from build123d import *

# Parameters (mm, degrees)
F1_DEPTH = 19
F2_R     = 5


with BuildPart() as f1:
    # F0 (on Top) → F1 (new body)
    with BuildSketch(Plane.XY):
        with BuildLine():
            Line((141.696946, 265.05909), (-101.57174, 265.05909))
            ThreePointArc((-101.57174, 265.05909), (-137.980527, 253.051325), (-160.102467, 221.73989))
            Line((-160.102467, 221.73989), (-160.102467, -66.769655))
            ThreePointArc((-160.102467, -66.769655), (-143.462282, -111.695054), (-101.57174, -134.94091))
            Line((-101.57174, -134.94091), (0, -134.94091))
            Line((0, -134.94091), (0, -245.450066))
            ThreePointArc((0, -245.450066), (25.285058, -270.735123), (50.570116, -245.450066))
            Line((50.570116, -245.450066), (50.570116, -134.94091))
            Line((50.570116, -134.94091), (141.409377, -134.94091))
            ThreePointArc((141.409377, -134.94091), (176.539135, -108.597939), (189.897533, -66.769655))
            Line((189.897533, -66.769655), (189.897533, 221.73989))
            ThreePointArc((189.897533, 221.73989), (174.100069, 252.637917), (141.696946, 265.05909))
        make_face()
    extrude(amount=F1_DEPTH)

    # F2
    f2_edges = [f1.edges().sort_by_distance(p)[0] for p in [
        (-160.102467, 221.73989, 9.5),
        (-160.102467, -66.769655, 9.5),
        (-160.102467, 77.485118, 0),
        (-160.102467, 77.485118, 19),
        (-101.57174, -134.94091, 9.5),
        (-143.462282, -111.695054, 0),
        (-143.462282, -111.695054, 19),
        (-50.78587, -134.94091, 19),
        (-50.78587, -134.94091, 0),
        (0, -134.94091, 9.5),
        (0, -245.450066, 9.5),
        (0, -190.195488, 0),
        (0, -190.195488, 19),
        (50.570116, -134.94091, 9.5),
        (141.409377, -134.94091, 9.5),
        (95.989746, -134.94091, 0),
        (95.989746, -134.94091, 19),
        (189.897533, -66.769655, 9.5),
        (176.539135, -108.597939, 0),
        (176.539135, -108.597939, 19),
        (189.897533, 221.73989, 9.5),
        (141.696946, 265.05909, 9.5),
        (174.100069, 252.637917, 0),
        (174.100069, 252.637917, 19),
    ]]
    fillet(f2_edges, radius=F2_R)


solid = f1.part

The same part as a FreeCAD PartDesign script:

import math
import FreeCAD as App
import Part
import Sketcher


def edges_at(feature, points):
    """Names of the edges that pass closest to the given points."""
    edges = feature.Shape.Edges
    near = lambda p: min(range(len(edges)), key=lambda i: edges[i].distToShape(Part.Vertex(*p))[0])
    return sorted({f"Edge{near(p) + 1}" for p in points})

doc = App.newDocument("Part")
body = doc.addObject("PartDesign::Body", "Body")

sketch1 = body.newObject("Sketcher::SketchObject", "Sketch")
sketch1.AttachmentSupport = (doc.getObject("XY_Plane"), [""])
sketch1.MapMode = "FlatFace"
sketch1.addGeometry([
    Part.LineSegment(App.Vector(142, 265, 0), App.Vector(-102, 265, 0)),
    Part.ArcOfCircle(Part.Circle(App.Vector(-102, 204, 0), App.Vector(0, 0, 1), 61), math.radians(90), math.radians(163)),
    Part.LineSegment(App.Vector(-160, 222, 0), App.Vector(-160, -67, 0)),
    Part.ArcOfCircle(Part.Circle(App.Vector(-91, -67, 0), App.Vector(0, 0, 1), 69), math.radians(180), math.radians(261)),
    Part.LineSegment(App.Vector(-102, -135, 0), App.Vector(0, -135, 0)),
    Part.LineSegment(App.Vector(0, -135, 0), App.Vector(0, -245, 0)),
    Part.ArcOfCircle(Part.Circle(App.Vector(25, -245, 0), App.Vector(0, 0, 1), 25), math.radians(-180), math.radians(0)),
    Part.LineSegment(App.Vector(51, -245, 0), App.Vector(51, -135, 0)),
    Part.LineSegment(App.Vector(51, -135, 0), App.Vector(141, -135, 0)),
    Part.ArcOfCircle(Part.Circle(App.Vector(118, -67, 0), App.Vector(0, 0, 1), 72), math.radians(-71), math.radians(0)),
    Part.LineSegment(App.Vector(190, -67, 0), App.Vector(190, 222, 0)),
    Part.ArcOfCircle(Part.Circle(App.Vector(142, 217, 0), App.Vector(0, 0, 1), 48), math.radians(6), math.radians(90)),
], False)
sketch1.addConstraint([
    Sketcher.Constraint("Tangent", 0, 2, 1, 1),
    Sketcher.Constraint("Coincident", 1, 2, 2, 1),
    Sketcher.Constraint("Tangent", 2, 2, 3, 1),
    Sketcher.Constraint("Coincident", 3, 2, 4, 1),
    Sketcher.Constraint("Coincident", 4, 2, 5, 1),
    Sketcher.Constraint("Tangent", 5, 2, 6, 1),
    Sketcher.Constraint("Tangent", 6, 2, 7, 1),
    Sketcher.Constraint("Coincident", 7, 2, 8, 1),
    Sketcher.Constraint("Coincident", 8, 2, 9, 1),
    Sketcher.Constraint("Tangent", 9, 2, 10, 1),
    Sketcher.Constraint("Coincident", 10, 2, 11, 1),
    Sketcher.Constraint("Tangent", 11, 2, 0, 1),
    Sketcher.Constraint("Horizontal", 0),
    Sketcher.Constraint("Vertical", 2),
    Sketcher.Constraint("Horizontal", 4),
    Sketcher.Constraint("Vertical", 5),
    Sketcher.Constraint("Vertical", 7),
    Sketcher.Constraint("Horizontal", 8),
    Sketcher.Constraint("Vertical", 10),
    Sketcher.Constraint("PointOnObject", 4, 2, -2),
    Sketcher.Constraint("Horizontal", 9, 3, 2, 2),
    Sketcher.Constraint("Horizontal", 4, 2, 7, 2),
    Sketcher.Constraint("Horizontal", 1, 2, 10, 2),
    Sketcher.Constraint("Vertical", 0, 2, 3, 2),
    Sketcher.Constraint("Radius", 9, 72.166299),
    Sketcher.Constraint("Radius", 1, 61.201489),
    Sketcher.Constraint("Radius", 3, 68.965195),
    Sketcher.Constraint("Radius", 6, 25.285058),
    Sketcher.Constraint("Radius", 11, 48.475616),
    Sketcher.Constraint("DistanceX", 4, 1, 4, 2, 101.57174),
    Sketcher.Constraint("DistanceX", 8, 1, 8, 2, 90.839261),
    Sketcher.Constraint("DistanceY", -1, 1, 1, 3, 203.857601),
    Sketcher.Constraint("DistanceY", 1, 2, 0, 2, 43.3192),
    Sketcher.Constraint("DistanceY", 2, 2, 2, 1, 288.509545),
    Sketcher.Constraint("DistanceY", 5, 2, 5, 1, 110.509156),
])
pad1 = body.newObject("PartDesign::Pad", "Pad")
pad1.Profile = sketch1
pad1.Length = 19
doc.recompute()

fillet = body.newObject("PartDesign::Fillet", "Fillet")
fillet.Base = (pad1, edges_at(pad1, [
    (-160.102, 221.74, 9.5),
    (-160.102, -66.77, 9.5),
    (-160.102, 77.485, 0),
    (-160.102, 77.485, 19),
    (-101.572, -134.941, 9.5),
    (-143.462, -111.695, 0),
    (-143.462, -111.695, 19),
    (-50.786, -134.941, 19),
    (-50.786, -134.941, 0),
    (0, -134.941, 9.5),
    (0, -245.45, 9.5),
    (0, -190.195, 0),
    (0, -190.195, 19),
    (50.57, -134.941, 9.5),
    (141.409, -134.941, 9.5),
    (95.99, -134.941, 0),
    (95.99, -134.941, 19),
    (189.898, -66.77, 9.5),
    (176.539, -108.598, 0),
    (176.539, -108.598, 19),
    (189.898, 221.74, 9.5),
    (141.697, 265.059, 9.5),
    (174.1, 252.638, 0),
    (174.1, 252.638, 19),
]))
fillet.Radius = 5

doc.recompute()
